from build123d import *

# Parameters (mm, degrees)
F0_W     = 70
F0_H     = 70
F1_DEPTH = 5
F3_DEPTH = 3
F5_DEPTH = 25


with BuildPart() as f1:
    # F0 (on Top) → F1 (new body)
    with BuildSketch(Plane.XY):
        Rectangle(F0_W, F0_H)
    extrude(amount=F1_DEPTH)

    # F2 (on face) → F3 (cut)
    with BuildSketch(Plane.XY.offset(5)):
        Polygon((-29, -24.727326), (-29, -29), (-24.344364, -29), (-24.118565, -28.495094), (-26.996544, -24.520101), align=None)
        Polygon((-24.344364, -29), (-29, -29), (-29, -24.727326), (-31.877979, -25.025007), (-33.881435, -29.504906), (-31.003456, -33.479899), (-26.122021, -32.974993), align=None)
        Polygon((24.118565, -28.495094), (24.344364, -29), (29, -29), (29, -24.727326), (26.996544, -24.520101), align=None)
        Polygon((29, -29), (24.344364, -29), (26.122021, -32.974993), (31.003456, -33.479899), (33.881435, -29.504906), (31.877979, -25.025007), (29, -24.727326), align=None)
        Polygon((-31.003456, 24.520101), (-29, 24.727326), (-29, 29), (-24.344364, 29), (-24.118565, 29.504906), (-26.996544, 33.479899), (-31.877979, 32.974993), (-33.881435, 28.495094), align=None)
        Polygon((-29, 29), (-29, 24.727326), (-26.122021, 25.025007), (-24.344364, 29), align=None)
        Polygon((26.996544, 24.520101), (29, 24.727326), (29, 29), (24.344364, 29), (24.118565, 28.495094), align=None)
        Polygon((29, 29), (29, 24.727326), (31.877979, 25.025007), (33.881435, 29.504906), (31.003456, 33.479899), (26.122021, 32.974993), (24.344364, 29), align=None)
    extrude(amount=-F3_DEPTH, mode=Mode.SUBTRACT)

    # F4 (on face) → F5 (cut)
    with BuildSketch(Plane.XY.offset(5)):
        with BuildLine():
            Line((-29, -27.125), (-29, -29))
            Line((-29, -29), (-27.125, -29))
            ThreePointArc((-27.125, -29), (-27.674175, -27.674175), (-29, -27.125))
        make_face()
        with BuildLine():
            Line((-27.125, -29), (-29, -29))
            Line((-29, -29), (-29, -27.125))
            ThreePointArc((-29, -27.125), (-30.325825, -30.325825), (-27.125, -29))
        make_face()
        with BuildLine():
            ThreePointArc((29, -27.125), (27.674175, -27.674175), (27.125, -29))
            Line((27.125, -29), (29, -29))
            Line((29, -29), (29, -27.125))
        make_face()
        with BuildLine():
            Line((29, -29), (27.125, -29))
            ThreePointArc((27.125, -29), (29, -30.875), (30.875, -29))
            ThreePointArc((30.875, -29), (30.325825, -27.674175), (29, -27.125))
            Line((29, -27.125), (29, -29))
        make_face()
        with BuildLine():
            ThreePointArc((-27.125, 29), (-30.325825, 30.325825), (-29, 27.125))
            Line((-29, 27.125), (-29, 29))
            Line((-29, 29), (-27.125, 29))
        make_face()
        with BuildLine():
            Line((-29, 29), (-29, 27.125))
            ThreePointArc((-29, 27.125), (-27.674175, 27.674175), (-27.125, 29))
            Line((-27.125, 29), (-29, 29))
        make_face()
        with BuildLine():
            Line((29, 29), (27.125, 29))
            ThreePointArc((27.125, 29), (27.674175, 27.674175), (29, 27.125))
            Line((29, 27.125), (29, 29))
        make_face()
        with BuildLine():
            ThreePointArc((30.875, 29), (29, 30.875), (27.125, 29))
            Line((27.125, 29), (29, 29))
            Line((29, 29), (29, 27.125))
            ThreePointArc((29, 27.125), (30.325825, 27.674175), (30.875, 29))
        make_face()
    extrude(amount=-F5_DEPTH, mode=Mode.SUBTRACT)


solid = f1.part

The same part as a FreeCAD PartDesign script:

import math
import FreeCAD as App
import Part
import Sketcher

V = App.Vector


def add_polygon(sketch, points):
    """Adds a closed chain of lines whose ends are joined by coincident constraints."""
    first, n = sketch.GeometryCount, len(points)
    for a, b in zip(points, points[1:] + points[:1]):
        sketch.addGeometry(Part.LineSegment(App.Vector(*a, 0), App.Vector(*b, 0)), False)
    for i in range(n):
        sketch.addConstraint(Sketcher.Constraint("Coincident", first + i, 2, first + (i + 1) % n, 1))

doc = App.newDocument("Part")
body = doc.addObject("PartDesign::Body", "Body")

sketch1 = body.newObject("Sketcher::SketchObject", "Sketch")
sketch1.AttachmentSupport = (doc.getObject("XY_Plane"), [""])
sketch1.MapMode = "FlatFace"
add_polygon(sketch1, [(-35, 35), (-35, -35), (35, -35), (35, 35)])
sketch1.addConstraint(Sketcher.Constraint("Vertical", 0))
sketch1.addConstraint(Sketcher.Constraint("Horizontal", 1))
sketch1.addConstraint(Sketcher.Constraint("Vertical", 2))
sketch1.addConstraint(Sketcher.Constraint("Horizontal", 3))
sketch1.addConstraint(Sketcher.Constraint("Symmetric", 0, 2, 2, 2, -1, 1))
sketch1.addConstraint(Sketcher.Constraint("Equal", 3, 0))
sketch1.addConstraint(Sketcher.Constraint("DistanceX", 1, 1, 1, 2, 70.0))
pad1 = body.newObject("PartDesign::Pad", "Pad")
pad1.Profile = sketch1
pad1.Length = 5

sketch2 = body.newObject("Sketcher::SketchObject", "Sketch001")
sketch2.AttachmentSupport = (doc.getObject("XY_Plane"), [""])
sketch2.MapMode = "FlatFace"
sketch2.AttachmentOffset = App.Placement(V(0, 0, 5), App.Rotation())
add_polygon(sketch2, [(-24.3, -29), (-24.1, -28.5), (-27, -24.5), (-29, -24.7), (-31.9, -25), (-33.9, -29.5), (-31, -33.5), (-26.1, -33)])
add_polygon(sketch2, [(24.1, -28.5), (24.3, -29), (26.1, -33), (31, -33.5), (33.9, -29.5), (31.9, -25), (29, -24.7), (27, -24.5)])
add_polygon(sketch2, [(-31, 24.5), (-29, 24.7), (-26.1, 25), (-24.3, 29), (-24.1, 29.5), (-27, 33.5), (-31.9, 33), (-33.9, 28.5)])
add_polygon(sketch2, [(27, 24.5), (29, 24.7), (31.9, 25), (33.9, 29.5), (31, 33.5), (26.1, 33), (24.3, 29), (24.1, 28.5)])
sketch2.addConstraint(Sketcher.Constraint("Symmetric", 13, 2, 16, 2, -1, 1))
sketch2.addConstraint(Sketcher.Constraint("Symmetric", 8, 2, 18, 2, -1, 1))
sketch2.addConstraint(Sketcher.Constraint("Symmetric", 2, 2, 24, 2, -1, 1))
sketch2.addConstraint(Sketcher.Constraint("Symmetric", 3, 2, 25, 2, -1, 1))
sketch2.addConstraint(Sketcher.Constraint("Symmetric", 4, 2, 26, 2, -1, 1))
sketch2.addConstraint(Sketcher.Constraint("Symmetric", 5, 2, 27, 2, -1, 1))
sketch2.addConstraint(Sketcher.Constraint("Symmetric", 6, 2, 28, 2, -1, 1))
sketch2.addConstraint(Sketcher.Constraint("Symmetric", 7, 2, 29, 2, -1, 1))
sketch2.addConstraint(Sketcher.Constraint("Symmetric", 0, 2, 30, 2, -1, 1))
sketch2.addConstraint(Sketcher.Constraint("Symmetric", 1, 2, 31, 2, -1, 1))
sketch2.addConstraint(Sketcher.Constraint("Symmetric", 7, 2, 8, 2, -2))
sketch2.addConstraint(Sketcher.Constraint("Symmetric", 6, 2, 9, 2, -2))
sketch2.addConstraint(Sketcher.Constraint("Symmetric", 5, 2, 10, 2, -2))
sketch2.addConstraint(Sketcher.Constraint("Symmetric", 4, 2, 11, 2, -2))
sketch2.addConstraint(Sketcher.Constraint("Symmetric", 3, 2, 12, 2, -2))
sketch2.addConstraint(Sketcher.Constraint("Symmetric", 2, 2, 13, 2, -2))
sketch2.addConstraint(Sketcher.Constraint("Symmetric", 1, 2, 14, 2, -2))
sketch2.addConstraint(Sketcher.Constraint("Symmetric", 0, 2, 15, 2, -2))
sketch2.addConstraint(Sketcher.Constraint("Parallel", 2, 3))
sketch2.addConstraint(Sketcher.Constraint("Parallel", 0, 4))
sketch2.addConstraint(Sketcher.Constraint("Parallel", 1, 5))
sketch2.addConstraint(Sketcher.Constraint("Parallel", 3, 6))
sketch2.addConstraint(Sketcher.Constraint("Parallel", 4, 7))
sketch2.addConstraint(Sketcher.Constraint("Parallel", 6, 16))
sketch2.addConstraint(Sketcher.Constraint("Parallel", 16, 17))
sketch2.addConstraint(Sketcher.Constraint("Parallel", 7, 18))
sketch2.addConstraint(Sketcher.Constraint("Parallel", 18, 19))
sketch2.addConstraint(Sketcher.Constraint("Parallel", 5, 20))
sketch2.addConstraint(Sketcher.Constraint("Parallel", 17, 21))
sketch2.addConstraint(Sketcher.Constraint("Parallel", 19, 22))
sketch2.addConstraint(Sketcher.Constraint("Parallel", 20, 23))
sketch2.addConstraint(Sketcher.Constraint("Horizontal", 17, 2, 25, 2))
sketch2.addConstraint(Sketcher.Constraint("Horizontal", 19, 2, 26, 2))
sketch2.addConstraint(Sketcher.Constraint("Horizontal", 20, 2, 27, 2))
sketch2.addConstraint(Sketcher.Constraint("Horizontal", 21, 2, 28, 2))
sketch2.addConstraint(Sketcher.Constraint("Horizontal", 22, 2, 30, 2))
sketch2.addConstraint(Sketcher.Constraint("Vertical", 6, 2, 17, 2))
sketch2.addConstraint(Sketcher.Constraint("Vertical", 0, 2, 19, 2))
sketch2.addConstraint(Sketcher.Constraint("Equal", 1, 4))
sketch2.addConstraint(Sketcher.Constraint("Equal", 5, 6))
sketch2.addConstraint(Sketcher.Constraint("DistanceX", 2, 2, -1, 1, 29.0))
sketch2.addConstraint(Sketcher.Constraint("DistanceY", 7, 2, -1, 1, 29.0))
sketch2.addConstraint(Sketcher.Constraint("DistanceY", 1, 2, -1, 1, 24.520101))
sketch2.addConstraint(Sketcher.Constraint("DistanceY", 4, 2, 3, 2, 4.479899))
sketch2.addConstraint(Sketcher.Constraint("DistanceX", 7, 2, 0, 2, 0.225799))
sketch2.addConstraint(Sketcher.Constraint("Distance", 7, 4.354381))
pocket1 = body.newObject("PartDesign::Pocket", "Pocket")
pocket1.Profile = sketch2
pocket1.Length = 3

sketch3 = body.newObject("Sketcher::SketchObject", "Sketch002")
sketch3.AttachmentSupport = (doc.getObject("XY_Plane"), [""])
sketch3.MapMode = "FlatFace"
sketch3.AttachmentOffset = App.Placement(V(0, 0, 5), App.Rotation())
sketch3.addGeometry(Part.ArcOfCircle(Part.Circle(V(-29, -29, 0), V(0, 0, 1), 1.9), math.radians(0), math.radians(90)), False)
sketch3.addGeometry(Part.ArcOfCircle(Part.Circle(V(-29, -29, 0), V(0, 0, 1), 1.9), math.radians(90), math.radians(360)), False)
sketch3.addGeometry(Part.ArcOfCircle(Part.Circle(V(29, -29, 0), V(0, 0, 1), 1.9), math.radians(90), math.radians(180)), False)
sketch3.addGeometry(Part.ArcOfCircle(Part.Circle(V(29, -29, 0), V(0, 0, 1), 1.9), math.radians(180), math.radians(360)), False)
sketch3.addGeometry(Part.ArcOfCircle(Part.Circle(V(29, -29, 0), V(0, 0, 1), 1.9), math.radians(0), math.radians(90)), False)
sketch3.addGeometry(Part.ArcOfCircle(Part.Circle(V(-29, 29, 0), V(0, 0, 1), 1.9), math.radians(0), math.radians(270)), False)
sketch3.addGeometry(Part.ArcOfCircle(Part.Circle(V(-29, 29, 0), V(0, 0, 1), 1.9), math.radians(-90), math.radians(0)), False)
sketch3.addGeometry(Part.ArcOfCircle(Part.Circle(V(29, 29, 0), V(0, 0, 1), 1.9), math.radians(-180), math.radians(-90)), False)
sketch3.addGeometry(Part.ArcOfCircle(Part.Circle(V(29, 29, 0), V(0, 0, 1), 1.9), math.radians(-90), math.radians(0)), False)
sketch3.addGeometry(Part.ArcOfCircle(Part.Circle(V(29, 29, 0), V(0, 0, 1), 1.9), math.radians(0), math.radians(180)), False)
sketch3.addConstraint(Sketcher.Constraint("Tangent", 0, 1, 1, 2))
sketch3.addConstraint(Sketcher.Constraint("Coincident", 1, 1, 0, 2))
sketch3.addConstraint(Sketcher.Constraint("Tangent", 2, 2, 3, 1))
sketch3.addConstraint(Sketcher.Constraint("Tangent", 3, 2, 4, 1))
sketch3.addConstraint(Sketcher.Constraint("Tangent", 4, 2, 2, 1))
sketch3.addConstraint(Sketcher.Constraint("Tangent", 5, 1, 6, 2))
sketch3.addConstraint(Sketcher.Constraint("Coincident", 6, 1, 5, 2))
sketch3.addConstraint(Sketcher.Constraint("Tangent", 7, 2, 8, 1))
sketch3.addConstraint(Sketcher.Constraint("Tangent", 8, 2, 9, 1))
sketch3.addConstraint(Sketcher.Constraint("Tangent", 9, 2, 7, 1))
sketch3.addConstraint(Sketcher.Constraint("Equal", 1, 2))
sketch3.addConstraint(Sketcher.Constraint("Equal", 4, 5))
sketch3.addConstraint(Sketcher.Constraint("Equal", 6, 7))
sketch3.addConstraint(Sketcher.Constraint("Symmetric", 2, 3, 5, 3, -1, 1))
sketch3.addConstraint(Sketcher.Constraint("Symmetric", 0, 3, 7, 3, -1, 1))
sketch3.addConstraint(Sketcher.Constraint("Symmetric", 0, 3, 2, 3, -2))
sketch3.addConstraint(Sketcher.Constraint("Horizontal", 4, 3, 0, 1))
sketch3.addConstraint(Sketcher.Constraint("Horizontal", 0, 1, 2, 2))
sketch3.addConstraint(Sketcher.Constraint("Horizontal", 2, 2, 3, 2))
sketch3.addConstraint(Sketcher.Constraint("Horizontal", 9, 3, 5, 1))
sketch3.addConstraint(Sketcher.Constraint("Horizontal", 5, 1, 8, 2))
sketch3.addConstraint(Sketcher.Constraint("Horizontal", 8, 2, 9, 2))
sketch3.addConstraint(Sketcher.Constraint("Vertical", 6, 3, 1, 1))
sketch3.addConstraint(Sketcher.Constraint("Vertical", 9, 3, 4, 2))
sketch3.addConstraint(Sketcher.Constraint("Vertical", 1, 1, 6, 1))
sketch3.addConstraint(Sketcher.Constraint("Vertical", 4, 2, 7, 2))
sketch3.addConstraint(Sketcher.Constraint("DistanceX", 0, 3, -1, 1, 29.000001))
sketch3.addConstraint(Sketcher.Constraint("DistanceY", 0, 3, -1, 1, 29.000001))
sketch3.addConstraint(Sketcher.Constraint("Radius", 0, 1.875001))
pocket2 = body.newObject("PartDesign::Pocket", "Pocket001")
pocket2.Profile = sketch3
pocket2.Length = 25

doc.recompute()
